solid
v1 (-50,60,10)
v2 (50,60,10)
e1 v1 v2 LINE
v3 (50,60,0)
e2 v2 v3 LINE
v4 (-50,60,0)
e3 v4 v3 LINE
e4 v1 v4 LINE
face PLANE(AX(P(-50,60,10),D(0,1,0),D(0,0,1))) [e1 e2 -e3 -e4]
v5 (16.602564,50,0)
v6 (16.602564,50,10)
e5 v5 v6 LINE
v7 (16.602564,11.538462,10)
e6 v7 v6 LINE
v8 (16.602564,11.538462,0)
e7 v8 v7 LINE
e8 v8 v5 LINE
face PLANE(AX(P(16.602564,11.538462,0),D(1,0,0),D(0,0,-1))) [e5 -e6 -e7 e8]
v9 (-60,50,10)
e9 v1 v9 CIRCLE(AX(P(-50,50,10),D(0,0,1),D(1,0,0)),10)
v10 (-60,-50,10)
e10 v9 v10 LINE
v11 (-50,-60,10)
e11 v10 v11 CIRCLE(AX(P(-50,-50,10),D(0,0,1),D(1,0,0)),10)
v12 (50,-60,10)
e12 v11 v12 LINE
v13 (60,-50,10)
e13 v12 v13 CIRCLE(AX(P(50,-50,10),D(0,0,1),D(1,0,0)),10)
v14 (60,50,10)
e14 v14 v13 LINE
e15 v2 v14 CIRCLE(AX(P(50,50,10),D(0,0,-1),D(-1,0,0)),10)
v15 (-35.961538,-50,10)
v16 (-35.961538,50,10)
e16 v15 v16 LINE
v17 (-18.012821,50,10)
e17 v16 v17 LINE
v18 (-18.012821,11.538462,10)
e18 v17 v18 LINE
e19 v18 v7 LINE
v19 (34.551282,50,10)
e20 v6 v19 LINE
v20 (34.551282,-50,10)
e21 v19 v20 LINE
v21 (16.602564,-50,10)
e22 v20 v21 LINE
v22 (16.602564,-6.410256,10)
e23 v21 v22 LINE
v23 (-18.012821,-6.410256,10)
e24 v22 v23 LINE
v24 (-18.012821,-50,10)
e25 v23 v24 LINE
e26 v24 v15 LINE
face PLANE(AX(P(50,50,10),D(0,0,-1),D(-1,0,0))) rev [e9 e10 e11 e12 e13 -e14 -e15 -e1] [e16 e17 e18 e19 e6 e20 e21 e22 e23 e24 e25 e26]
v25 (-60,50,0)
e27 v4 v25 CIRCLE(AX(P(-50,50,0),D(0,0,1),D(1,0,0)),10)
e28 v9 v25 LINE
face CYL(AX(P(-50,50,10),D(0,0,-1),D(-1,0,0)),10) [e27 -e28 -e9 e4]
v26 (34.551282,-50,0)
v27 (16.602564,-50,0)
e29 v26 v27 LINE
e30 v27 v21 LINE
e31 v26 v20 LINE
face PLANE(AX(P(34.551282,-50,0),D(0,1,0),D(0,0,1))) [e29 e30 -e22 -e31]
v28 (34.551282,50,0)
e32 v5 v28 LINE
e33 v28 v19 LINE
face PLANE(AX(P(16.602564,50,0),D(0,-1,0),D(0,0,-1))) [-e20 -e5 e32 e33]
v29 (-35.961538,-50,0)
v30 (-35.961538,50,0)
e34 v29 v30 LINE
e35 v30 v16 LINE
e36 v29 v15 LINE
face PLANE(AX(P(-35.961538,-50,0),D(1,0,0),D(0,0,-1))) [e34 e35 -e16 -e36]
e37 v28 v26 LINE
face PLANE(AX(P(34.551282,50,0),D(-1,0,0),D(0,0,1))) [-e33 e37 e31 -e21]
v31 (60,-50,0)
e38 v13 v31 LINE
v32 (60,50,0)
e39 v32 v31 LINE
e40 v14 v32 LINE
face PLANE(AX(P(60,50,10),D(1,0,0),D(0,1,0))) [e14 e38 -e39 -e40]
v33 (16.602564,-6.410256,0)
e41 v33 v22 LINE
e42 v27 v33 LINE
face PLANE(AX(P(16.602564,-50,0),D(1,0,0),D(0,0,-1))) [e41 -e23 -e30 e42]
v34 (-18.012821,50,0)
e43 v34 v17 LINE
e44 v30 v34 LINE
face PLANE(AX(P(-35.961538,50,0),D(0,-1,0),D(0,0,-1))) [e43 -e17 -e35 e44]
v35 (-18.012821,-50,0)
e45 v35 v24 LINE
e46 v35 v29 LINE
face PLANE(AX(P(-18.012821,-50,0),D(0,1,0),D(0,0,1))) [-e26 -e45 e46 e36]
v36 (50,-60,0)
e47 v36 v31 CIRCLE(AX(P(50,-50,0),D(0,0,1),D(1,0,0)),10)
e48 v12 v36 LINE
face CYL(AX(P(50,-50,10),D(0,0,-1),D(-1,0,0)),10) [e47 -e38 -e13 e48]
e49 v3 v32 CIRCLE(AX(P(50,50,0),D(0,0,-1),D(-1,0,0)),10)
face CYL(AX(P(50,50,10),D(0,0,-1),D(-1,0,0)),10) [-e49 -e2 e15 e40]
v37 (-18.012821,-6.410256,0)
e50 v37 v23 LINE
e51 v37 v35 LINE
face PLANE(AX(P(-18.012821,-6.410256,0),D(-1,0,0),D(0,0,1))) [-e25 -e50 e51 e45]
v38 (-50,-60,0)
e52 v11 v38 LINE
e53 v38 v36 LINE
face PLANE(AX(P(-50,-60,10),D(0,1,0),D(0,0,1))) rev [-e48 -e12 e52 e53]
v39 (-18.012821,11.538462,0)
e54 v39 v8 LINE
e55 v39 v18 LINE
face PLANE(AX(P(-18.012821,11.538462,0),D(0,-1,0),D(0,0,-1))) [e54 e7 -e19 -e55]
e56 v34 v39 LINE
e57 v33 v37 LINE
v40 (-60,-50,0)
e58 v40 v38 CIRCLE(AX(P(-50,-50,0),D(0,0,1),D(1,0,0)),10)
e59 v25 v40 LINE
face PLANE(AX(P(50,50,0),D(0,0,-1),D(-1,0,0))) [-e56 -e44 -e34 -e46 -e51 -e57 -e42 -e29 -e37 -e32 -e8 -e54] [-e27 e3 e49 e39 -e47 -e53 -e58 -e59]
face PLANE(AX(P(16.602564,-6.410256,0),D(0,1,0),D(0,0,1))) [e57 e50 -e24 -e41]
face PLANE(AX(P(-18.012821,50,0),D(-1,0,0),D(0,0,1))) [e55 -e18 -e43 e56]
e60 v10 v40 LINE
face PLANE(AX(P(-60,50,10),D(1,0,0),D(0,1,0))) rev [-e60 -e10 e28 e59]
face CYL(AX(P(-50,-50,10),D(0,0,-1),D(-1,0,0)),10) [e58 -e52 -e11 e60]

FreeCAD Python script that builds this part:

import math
import FreeCAD as App
import Part
import Sketcher

V = App.Vector
Q = App.Units.Quantity


def add_polygon(sketch, points):
    """Adds a closed chain of lines whose ends are joined by coincident constraints."""
    first, n = sketch.GeometryCount, len(points)
    for a, b in zip(points, points[1:] + points[:1]):
        sketch.addGeometry(Part.LineSegment(App.Vector(*a, 0), App.Vector(*b, 0)), False)
    for i in range(n):
        sketch.addConstraint(Sketcher.Constraint("Coincident", first + i, 2, first + (i + 1) % n, 1))

doc = App.newDocument("Part")
params = doc.addObject("Spreadsheet::Sheet", "Params")
for row, (alias, value) in enumerate([
    ("sketch1_radius", "10 mm"),
    ("sketch1_width", "100 mm"),
    ("pad1_length", "10 mm"),
    ("sketch2_height", "100 mm"),
    ("pocket1_length", "10 mm"),
], start=1):
    params.set(f"A{row}", alias)
    params.set(f"B{row}", "=" + value)
    params.setAlias(f"B{row}", alias)

body = doc.addObject("PartDesign::Body", "Body")

sketch1 = doc.addObject("Sketcher::SketchObject", "Sketch")
body.addObject(sketch1)
sketch1.AttachmentSupport = (doc.XY_Plane, [""])
sketch1.MapMode = "FlatFace"
sketch1.addGeometry(Part.LineSegment(V(50, 60, 0), V(-50, 60, 0)), False)
sketch1.addGeometry(Part.ArcOfCircle(Part.Circle(V(-50, 50, 0), V(0, 0, 1), 10), math.radians(90), math.radians(180)), False)
sketch1.addGeometry(Part.LineSegment(V(-60, 50, 0), V(-60, -50, 0)), False)
sketch1.addGeometry(Part.ArcOfCircle(Part.Circle(V(-50, -50, 0), V(0, 0, 1), 10), math.radians(180), math.radians(270)), False)
sketch1.addGeometry(Part.LineSegment(V(-50, -60, 0), V(50, -60, 0)), False)
sketch1.addGeometry(Part.ArcOfCircle(Part.Circle(V(50, -50, 0), V(0, 0, 1), 10), math.radians(-90), math.radians(0)), False)
sketch1.addGeometry(Part.LineSegment(V(60, -50, 0), V(60, 50, 0)), False)
sketch1.addGeometry(Part.ArcOfCircle(Part.Circle(V(50, 50, 0), V(0, 0, 1), 10), math.radians(0), math.radians(90)), False)
sketch1.addConstraint(Sketcher.Constraint("Tangent", 0, 2, 1, 1))
sketch1.addConstraint(Sketcher.Constraint("Tangent", 1, 2, 2, 1))
sketch1.addConstraint(Sketcher.Constraint("Tangent", 2, 2, 3, 1))
sketch1.addConstraint(Sketcher.Constraint("Tangent", 3, 2, 4, 1))
sketch1.addConstraint(Sketcher.Constraint("Tangent", 4, 2, 5, 1))
sketch1.addConstraint(Sketcher.Constraint("Tangent", 5, 2, 6, 1))
sketch1.addConstraint(Sketcher.Constraint("Tangent", 6, 2, 7, 1))
sketch1.addConstraint(Sketcher.Constraint("Tangent", 7, 2, 0, 1))
sketch1.addConstraint(Sketcher.Constraint("Horizontal", 0))
sketch1.addConstraint(Sketcher.Constraint("Vertical", 2))
sketch1.addConstraint(Sketcher.Constraint("Horizontal", 4))
sketch1.addConstraint(Sketcher.Constraint("Vertical", 6))
sketch1.addConstraint(Sketcher.Constraint("Equal", 1, 3))
sketch1.addConstraint(Sketcher.Constraint("Equal", 3, 5))
sketch1.addConstraint(Sketcher.Constraint("Equal", 5, 7))
sketch1.addConstraint(Sketcher.Constraint("Symmetric", 1, 3, 5, 3, -1, 1))
sketch1.addConstraint(Sketcher.Constraint("Equal", 4, 2))
sketch1.addConstraint(Sketcher.Constraint("Radius", 1, Q("10 mm")))
sketch1.addConstraint(Sketcher.Constraint("DistanceX", 0, 2, 0, 1, Q("100 mm")))
sketch1.setExpression("Constraints[17]", "Params.sketch1_radius")
sketch1.setExpression("Constraints[18]", "Params.sketch1_width")
pad1 = doc.addObject("PartDesign::Pad", "Pad")
body.addObject(pad1)
pad1.Profile = sketch1
pad1.setExpression("Length", "Params.pad1_length")

sketch2 = doc.addObject("Sketcher::SketchObject", "Sketch001")
body.addObject(sketch2)
sketch2.AttachmentSupport = (doc.XY_Plane, [""])
sketch2.MapMode = "FlatFace"
sketch2.AttachmentOffset = App.Placement(V(0, 0, 10), App.Rotation())
add_polygon(sketch2, [(-18, 50), (-36, 50), (-36, -50), (-18, -50), (-18, -6), (17, -6), (17, -50), (35, -50), (35, 50), (17, 50), (17, 12), (-18, 12)])
sketch2.addConstraint(Sketcher.Constraint("Horizontal", 0))
sketch2.addConstraint(Sketcher.Constraint("Vertical", 1))
sketch2.addConstraint(Sketcher.Constraint("Horizontal", 2))
sketch2.addConstraint(Sketcher.Constraint("Vertical", 3))
sketch2.addConstraint(Sketcher.Constraint("Horizontal", 4))
sketch2.addConstraint(Sketcher.Constraint("Vertical", 5))
sketch2.addConstraint(Sketcher.Constraint("Horizontal", 6))
sketch2.addConstraint(Sketcher.Constraint("Vertical", 7))
sketch2.addConstraint(Sketcher.Constraint("Horizontal", 8))
sketch2.addConstraint(Sketcher.Constraint("Vertical", 9))
sketch2.addConstraint(Sketcher.Constraint("Horizontal", 10))
sketch2.addConstraint(Sketcher.Constraint("Vertical", 11))
sketch2.addConstraint(Sketcher.Constraint("Symmetric", 5, 2, 8, 2, -1))
sketch2.addConstraint(Sketcher.Constraint("Symmetric", 2, 2, 11, 2, -1))
sketch2.addConstraint(Sketcher.Constraint("Horizontal", 2, 2, 5, 2))
sketch2.addConstraint(Sketcher.Constraint("Equal", 2, 6))
sketch2.addConstraint(Sketcher.Constraint("DistanceY", 1, 2, 1, 1, Q("100 mm")))
sketch2.addConstraint(Sketcher.Constraint("DistanceY", 9, 2, 9, 1, Q("38.461538 mm")))
sketch2.addConstraint(Sketcher.Constraint("DistanceX", 0, 2, 0, 1, Q("17.948718 mm")))
sketch2.addConstraint(Sketcher.Constraint("DistanceX", 4, 1, 4, 2, Q("34.615385 mm")))
sketch2.addConstraint(Sketcher.Constraint("DistanceY", 3, 1, 3, 2, Q("43.589744 mm")))
sketch2.addConstraint(Sketcher.Constraint("DistanceX", 0, 2, -1, 1, Q("35.961538 mm")))
sketch2.setExpression("Constraints[28]", "Params.sketch2_height")
pocket1 = doc.addObject("PartDesign::Pocket", "Pocket")
body.addObject(pocket1)
pocket1.Profile = sketch2
pocket1.setExpression("Length", "Params.pocket1_length")

doc.recompute()
